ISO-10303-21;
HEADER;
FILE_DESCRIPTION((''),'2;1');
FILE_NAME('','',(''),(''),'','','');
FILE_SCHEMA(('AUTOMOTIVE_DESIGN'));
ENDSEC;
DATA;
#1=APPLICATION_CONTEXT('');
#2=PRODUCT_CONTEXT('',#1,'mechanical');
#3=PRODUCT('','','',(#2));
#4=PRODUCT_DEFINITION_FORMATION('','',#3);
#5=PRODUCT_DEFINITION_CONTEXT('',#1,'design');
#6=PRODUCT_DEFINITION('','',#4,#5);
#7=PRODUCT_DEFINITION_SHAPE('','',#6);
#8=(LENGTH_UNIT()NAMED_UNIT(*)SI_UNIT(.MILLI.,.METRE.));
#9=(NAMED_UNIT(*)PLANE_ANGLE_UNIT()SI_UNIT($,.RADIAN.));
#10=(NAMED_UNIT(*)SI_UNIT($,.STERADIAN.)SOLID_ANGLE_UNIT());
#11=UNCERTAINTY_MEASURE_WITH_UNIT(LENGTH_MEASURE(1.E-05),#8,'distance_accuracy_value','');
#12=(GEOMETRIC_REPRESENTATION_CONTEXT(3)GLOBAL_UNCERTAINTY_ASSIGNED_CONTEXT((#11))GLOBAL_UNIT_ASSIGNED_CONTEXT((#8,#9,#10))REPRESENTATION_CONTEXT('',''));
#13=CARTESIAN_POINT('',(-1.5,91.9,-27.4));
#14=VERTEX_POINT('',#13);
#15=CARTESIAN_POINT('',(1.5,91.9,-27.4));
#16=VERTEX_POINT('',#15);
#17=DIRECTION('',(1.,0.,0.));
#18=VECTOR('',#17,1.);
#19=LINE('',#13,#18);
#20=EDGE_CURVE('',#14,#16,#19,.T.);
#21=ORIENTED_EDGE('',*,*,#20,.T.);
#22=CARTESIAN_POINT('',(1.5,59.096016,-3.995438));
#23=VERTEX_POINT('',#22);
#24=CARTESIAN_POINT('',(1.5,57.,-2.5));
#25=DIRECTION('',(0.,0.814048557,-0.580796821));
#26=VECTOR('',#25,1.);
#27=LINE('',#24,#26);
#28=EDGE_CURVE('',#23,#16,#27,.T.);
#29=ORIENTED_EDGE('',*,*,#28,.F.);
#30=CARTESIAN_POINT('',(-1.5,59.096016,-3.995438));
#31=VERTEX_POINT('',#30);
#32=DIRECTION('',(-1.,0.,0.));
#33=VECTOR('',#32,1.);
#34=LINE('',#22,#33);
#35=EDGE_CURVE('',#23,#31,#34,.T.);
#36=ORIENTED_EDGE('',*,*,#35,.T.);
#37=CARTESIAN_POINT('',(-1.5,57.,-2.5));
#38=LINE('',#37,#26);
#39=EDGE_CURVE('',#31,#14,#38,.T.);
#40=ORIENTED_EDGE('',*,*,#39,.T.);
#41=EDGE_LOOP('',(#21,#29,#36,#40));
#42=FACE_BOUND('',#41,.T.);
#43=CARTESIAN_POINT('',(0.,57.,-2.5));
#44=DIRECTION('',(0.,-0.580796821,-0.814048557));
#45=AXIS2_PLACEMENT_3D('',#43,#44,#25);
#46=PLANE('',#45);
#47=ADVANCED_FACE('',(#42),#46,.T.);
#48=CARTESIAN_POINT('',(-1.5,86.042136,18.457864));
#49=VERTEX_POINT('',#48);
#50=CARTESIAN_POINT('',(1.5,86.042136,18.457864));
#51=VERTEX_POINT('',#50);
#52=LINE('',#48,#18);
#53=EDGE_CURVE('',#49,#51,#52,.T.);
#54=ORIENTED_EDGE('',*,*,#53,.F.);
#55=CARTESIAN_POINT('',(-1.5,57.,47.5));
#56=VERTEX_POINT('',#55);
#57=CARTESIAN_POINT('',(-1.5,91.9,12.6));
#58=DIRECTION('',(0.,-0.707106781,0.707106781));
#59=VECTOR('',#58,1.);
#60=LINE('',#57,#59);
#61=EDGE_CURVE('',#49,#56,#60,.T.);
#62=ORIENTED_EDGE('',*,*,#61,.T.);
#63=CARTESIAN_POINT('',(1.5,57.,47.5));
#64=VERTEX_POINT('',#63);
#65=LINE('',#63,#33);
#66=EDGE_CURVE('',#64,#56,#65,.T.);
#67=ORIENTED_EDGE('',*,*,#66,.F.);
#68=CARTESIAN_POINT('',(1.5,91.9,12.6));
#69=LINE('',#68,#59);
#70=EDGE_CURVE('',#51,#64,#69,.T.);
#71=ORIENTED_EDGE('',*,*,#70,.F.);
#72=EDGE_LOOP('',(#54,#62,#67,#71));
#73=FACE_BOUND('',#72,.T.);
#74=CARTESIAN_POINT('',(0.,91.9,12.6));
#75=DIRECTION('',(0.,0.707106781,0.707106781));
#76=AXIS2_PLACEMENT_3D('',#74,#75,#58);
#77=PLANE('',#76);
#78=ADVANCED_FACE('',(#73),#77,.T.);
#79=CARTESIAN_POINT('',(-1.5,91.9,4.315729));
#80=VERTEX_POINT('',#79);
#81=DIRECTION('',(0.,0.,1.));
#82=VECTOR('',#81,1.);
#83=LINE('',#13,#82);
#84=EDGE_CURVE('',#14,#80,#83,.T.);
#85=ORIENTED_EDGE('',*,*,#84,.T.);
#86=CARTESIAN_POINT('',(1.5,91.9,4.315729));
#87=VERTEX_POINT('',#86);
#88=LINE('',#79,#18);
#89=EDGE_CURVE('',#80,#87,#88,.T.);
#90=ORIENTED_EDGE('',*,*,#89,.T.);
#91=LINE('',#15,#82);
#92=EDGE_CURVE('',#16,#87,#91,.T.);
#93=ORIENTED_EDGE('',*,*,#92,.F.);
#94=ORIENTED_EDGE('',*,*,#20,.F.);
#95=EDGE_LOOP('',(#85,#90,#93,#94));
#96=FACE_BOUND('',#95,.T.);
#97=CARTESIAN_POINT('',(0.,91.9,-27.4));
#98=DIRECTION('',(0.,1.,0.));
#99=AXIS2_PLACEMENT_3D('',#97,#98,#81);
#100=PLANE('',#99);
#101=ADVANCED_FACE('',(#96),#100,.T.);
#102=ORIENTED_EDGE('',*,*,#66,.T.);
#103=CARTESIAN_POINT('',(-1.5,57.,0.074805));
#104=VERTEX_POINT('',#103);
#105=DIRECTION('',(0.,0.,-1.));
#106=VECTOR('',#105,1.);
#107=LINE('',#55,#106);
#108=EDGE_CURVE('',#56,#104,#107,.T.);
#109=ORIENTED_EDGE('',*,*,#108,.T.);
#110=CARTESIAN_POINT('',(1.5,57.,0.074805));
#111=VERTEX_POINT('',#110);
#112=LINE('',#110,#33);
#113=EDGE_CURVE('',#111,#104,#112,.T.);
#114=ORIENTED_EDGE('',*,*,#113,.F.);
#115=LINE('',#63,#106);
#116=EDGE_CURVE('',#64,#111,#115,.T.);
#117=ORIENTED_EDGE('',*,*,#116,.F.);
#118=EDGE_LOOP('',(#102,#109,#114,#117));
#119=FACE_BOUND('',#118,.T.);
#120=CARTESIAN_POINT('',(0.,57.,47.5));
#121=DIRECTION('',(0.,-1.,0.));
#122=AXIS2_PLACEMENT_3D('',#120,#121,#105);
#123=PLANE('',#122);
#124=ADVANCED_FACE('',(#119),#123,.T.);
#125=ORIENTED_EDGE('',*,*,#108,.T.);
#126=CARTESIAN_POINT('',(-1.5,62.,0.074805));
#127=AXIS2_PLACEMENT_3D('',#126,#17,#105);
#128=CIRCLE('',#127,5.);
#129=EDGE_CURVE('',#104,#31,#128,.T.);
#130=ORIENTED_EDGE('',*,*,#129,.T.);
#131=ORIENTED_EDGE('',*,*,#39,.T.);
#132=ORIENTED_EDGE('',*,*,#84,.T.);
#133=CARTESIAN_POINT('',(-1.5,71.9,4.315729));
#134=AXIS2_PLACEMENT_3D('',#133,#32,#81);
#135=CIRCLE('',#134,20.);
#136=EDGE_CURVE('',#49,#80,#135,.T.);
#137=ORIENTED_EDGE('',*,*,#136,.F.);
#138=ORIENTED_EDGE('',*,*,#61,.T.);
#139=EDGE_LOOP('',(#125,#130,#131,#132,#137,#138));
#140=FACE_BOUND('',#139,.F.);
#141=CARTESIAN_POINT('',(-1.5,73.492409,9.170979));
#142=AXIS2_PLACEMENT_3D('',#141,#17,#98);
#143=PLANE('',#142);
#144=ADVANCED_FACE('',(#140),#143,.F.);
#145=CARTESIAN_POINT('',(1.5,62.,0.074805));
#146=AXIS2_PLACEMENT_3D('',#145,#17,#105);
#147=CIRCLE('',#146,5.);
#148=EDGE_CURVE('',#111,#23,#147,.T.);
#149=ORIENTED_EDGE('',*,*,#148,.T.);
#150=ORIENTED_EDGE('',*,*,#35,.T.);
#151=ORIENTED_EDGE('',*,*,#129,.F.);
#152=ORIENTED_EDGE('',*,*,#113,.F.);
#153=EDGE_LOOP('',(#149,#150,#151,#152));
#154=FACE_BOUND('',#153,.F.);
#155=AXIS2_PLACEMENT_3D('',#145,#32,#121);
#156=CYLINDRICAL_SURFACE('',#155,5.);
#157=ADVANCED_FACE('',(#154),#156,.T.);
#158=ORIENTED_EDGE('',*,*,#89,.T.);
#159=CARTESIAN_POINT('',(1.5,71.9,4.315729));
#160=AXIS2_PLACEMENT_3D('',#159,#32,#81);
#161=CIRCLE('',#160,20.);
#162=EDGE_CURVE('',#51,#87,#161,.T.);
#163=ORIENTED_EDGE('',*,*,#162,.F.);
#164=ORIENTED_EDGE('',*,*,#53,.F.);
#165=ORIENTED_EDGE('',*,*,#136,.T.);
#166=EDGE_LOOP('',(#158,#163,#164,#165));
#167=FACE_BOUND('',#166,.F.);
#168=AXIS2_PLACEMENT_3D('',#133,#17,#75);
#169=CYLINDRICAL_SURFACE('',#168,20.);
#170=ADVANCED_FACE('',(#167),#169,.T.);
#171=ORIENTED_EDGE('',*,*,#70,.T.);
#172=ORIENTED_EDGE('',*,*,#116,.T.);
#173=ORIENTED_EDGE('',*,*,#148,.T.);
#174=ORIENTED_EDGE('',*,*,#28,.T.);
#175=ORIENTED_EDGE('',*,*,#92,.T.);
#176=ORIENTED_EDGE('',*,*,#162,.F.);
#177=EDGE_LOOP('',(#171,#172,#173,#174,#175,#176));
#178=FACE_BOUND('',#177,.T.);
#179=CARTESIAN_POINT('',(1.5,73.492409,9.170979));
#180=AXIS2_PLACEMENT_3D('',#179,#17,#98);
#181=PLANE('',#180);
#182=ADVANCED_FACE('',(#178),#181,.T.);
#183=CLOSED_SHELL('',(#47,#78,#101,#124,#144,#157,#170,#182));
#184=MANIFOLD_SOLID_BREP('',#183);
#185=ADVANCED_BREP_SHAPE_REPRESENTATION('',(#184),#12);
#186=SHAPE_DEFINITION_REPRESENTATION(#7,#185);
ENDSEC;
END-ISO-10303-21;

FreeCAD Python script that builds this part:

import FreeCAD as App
import Part
import Sketcher
from FreeCAD import Vector
Q = App.Units.Quantity


def edges_at(feature, points):
    """Names of the edges that pass closest to the given points."""
    edges = feature.Shape.Edges
    near = lambda p: min(range(len(edges)), key=lambda i: edges[i].distToShape(Part.Vertex(*p))[0])
    return sorted({f"Edge{near(p) + 1}" for p in points})


def add_polygon(sketch, points):
    """Adds a closed chain of lines whose ends are joined by coincident constraints."""
    first, n = sketch.GeometryCount, len(points)
    for a, b in zip(points, points[1:] + points[:1]):
        sketch.addGeometry(Part.LineSegment(App.Vector(*a, 0), App.Vector(*b, 0)), False)
    for i in range(n):
        sketch.addConstraint(Sketcher.Constraint("Coincident", first + i, 2, first + (i + 1) % n, 1))

doc = App.newDocument("Part")
body = doc.addObject("PartDesign::Body", "Body")

sketch1 = body.newObject("Sketcher::SketchObject", "Sketch")
sketch1.AttachmentSupport = (doc.getObject("YZ_Plane"), [""])
sketch1.MapMode = "FlatFace"
add_polygon(sketch1, [(27, -2), (62, -27), (62, 13), (27, 48)])
sketch1.addConstraint([
    Sketcher.Constraint("Vertical", 1),
    Sketcher.Constraint("Vertical", 3),
    Sketcher.Constraint("DistanceY", 1, 1, 1, 2, Q("40 mm")),
    Sketcher.Constraint("DistanceY", 3, 2, 3, 1, Q("50 mm")),
    Sketcher.Constraint("Angle", 2, Q("135 deg")),
    Sketcher.Constraint("DistanceX", -1, 1, 2, 2, Q("27 mm")),
    Sketcher.Constraint("DistanceX", -1, 1, 0, 2, Q("61.9 mm")),
    Sketcher.Constraint("DistanceY", 0, 2, -1, 1, Q("27.4 mm")),
])
pad1 = body.newObject("PartDesign::Pad", "Pad")
pad1.Profile = sketch1
pad1.Length = 3
pad1.Midplane = True
doc.recompute()

fillet = body.newObject("PartDesign::Fillet", "Fillet")
fillet.Base = (pad1, edges_at(pad1, [(0, 61.9, 12.6)]))
fillet.Radius = 20
doc.recompute()

fillet2 = body.newObject("PartDesign::Fillet", "Fillet001")
fillet2.Base = (fillet, edges_at(fillet, [(0, 27, -2.5)]))
fillet2.Radius = 5
body2 = doc.addObject("PartDesign::Body", "Body001")
doc.recompute()

body.Placement = App.Placement(Vector(0, 30, 0), App.Rotation(Vector(0, 0, 1), 0))
boolean = body2.newObject("PartDesign::Boolean", "Boolean")
boolean.Type = "Fuse"
boolean.addObjects([body])

doc.recompute()
